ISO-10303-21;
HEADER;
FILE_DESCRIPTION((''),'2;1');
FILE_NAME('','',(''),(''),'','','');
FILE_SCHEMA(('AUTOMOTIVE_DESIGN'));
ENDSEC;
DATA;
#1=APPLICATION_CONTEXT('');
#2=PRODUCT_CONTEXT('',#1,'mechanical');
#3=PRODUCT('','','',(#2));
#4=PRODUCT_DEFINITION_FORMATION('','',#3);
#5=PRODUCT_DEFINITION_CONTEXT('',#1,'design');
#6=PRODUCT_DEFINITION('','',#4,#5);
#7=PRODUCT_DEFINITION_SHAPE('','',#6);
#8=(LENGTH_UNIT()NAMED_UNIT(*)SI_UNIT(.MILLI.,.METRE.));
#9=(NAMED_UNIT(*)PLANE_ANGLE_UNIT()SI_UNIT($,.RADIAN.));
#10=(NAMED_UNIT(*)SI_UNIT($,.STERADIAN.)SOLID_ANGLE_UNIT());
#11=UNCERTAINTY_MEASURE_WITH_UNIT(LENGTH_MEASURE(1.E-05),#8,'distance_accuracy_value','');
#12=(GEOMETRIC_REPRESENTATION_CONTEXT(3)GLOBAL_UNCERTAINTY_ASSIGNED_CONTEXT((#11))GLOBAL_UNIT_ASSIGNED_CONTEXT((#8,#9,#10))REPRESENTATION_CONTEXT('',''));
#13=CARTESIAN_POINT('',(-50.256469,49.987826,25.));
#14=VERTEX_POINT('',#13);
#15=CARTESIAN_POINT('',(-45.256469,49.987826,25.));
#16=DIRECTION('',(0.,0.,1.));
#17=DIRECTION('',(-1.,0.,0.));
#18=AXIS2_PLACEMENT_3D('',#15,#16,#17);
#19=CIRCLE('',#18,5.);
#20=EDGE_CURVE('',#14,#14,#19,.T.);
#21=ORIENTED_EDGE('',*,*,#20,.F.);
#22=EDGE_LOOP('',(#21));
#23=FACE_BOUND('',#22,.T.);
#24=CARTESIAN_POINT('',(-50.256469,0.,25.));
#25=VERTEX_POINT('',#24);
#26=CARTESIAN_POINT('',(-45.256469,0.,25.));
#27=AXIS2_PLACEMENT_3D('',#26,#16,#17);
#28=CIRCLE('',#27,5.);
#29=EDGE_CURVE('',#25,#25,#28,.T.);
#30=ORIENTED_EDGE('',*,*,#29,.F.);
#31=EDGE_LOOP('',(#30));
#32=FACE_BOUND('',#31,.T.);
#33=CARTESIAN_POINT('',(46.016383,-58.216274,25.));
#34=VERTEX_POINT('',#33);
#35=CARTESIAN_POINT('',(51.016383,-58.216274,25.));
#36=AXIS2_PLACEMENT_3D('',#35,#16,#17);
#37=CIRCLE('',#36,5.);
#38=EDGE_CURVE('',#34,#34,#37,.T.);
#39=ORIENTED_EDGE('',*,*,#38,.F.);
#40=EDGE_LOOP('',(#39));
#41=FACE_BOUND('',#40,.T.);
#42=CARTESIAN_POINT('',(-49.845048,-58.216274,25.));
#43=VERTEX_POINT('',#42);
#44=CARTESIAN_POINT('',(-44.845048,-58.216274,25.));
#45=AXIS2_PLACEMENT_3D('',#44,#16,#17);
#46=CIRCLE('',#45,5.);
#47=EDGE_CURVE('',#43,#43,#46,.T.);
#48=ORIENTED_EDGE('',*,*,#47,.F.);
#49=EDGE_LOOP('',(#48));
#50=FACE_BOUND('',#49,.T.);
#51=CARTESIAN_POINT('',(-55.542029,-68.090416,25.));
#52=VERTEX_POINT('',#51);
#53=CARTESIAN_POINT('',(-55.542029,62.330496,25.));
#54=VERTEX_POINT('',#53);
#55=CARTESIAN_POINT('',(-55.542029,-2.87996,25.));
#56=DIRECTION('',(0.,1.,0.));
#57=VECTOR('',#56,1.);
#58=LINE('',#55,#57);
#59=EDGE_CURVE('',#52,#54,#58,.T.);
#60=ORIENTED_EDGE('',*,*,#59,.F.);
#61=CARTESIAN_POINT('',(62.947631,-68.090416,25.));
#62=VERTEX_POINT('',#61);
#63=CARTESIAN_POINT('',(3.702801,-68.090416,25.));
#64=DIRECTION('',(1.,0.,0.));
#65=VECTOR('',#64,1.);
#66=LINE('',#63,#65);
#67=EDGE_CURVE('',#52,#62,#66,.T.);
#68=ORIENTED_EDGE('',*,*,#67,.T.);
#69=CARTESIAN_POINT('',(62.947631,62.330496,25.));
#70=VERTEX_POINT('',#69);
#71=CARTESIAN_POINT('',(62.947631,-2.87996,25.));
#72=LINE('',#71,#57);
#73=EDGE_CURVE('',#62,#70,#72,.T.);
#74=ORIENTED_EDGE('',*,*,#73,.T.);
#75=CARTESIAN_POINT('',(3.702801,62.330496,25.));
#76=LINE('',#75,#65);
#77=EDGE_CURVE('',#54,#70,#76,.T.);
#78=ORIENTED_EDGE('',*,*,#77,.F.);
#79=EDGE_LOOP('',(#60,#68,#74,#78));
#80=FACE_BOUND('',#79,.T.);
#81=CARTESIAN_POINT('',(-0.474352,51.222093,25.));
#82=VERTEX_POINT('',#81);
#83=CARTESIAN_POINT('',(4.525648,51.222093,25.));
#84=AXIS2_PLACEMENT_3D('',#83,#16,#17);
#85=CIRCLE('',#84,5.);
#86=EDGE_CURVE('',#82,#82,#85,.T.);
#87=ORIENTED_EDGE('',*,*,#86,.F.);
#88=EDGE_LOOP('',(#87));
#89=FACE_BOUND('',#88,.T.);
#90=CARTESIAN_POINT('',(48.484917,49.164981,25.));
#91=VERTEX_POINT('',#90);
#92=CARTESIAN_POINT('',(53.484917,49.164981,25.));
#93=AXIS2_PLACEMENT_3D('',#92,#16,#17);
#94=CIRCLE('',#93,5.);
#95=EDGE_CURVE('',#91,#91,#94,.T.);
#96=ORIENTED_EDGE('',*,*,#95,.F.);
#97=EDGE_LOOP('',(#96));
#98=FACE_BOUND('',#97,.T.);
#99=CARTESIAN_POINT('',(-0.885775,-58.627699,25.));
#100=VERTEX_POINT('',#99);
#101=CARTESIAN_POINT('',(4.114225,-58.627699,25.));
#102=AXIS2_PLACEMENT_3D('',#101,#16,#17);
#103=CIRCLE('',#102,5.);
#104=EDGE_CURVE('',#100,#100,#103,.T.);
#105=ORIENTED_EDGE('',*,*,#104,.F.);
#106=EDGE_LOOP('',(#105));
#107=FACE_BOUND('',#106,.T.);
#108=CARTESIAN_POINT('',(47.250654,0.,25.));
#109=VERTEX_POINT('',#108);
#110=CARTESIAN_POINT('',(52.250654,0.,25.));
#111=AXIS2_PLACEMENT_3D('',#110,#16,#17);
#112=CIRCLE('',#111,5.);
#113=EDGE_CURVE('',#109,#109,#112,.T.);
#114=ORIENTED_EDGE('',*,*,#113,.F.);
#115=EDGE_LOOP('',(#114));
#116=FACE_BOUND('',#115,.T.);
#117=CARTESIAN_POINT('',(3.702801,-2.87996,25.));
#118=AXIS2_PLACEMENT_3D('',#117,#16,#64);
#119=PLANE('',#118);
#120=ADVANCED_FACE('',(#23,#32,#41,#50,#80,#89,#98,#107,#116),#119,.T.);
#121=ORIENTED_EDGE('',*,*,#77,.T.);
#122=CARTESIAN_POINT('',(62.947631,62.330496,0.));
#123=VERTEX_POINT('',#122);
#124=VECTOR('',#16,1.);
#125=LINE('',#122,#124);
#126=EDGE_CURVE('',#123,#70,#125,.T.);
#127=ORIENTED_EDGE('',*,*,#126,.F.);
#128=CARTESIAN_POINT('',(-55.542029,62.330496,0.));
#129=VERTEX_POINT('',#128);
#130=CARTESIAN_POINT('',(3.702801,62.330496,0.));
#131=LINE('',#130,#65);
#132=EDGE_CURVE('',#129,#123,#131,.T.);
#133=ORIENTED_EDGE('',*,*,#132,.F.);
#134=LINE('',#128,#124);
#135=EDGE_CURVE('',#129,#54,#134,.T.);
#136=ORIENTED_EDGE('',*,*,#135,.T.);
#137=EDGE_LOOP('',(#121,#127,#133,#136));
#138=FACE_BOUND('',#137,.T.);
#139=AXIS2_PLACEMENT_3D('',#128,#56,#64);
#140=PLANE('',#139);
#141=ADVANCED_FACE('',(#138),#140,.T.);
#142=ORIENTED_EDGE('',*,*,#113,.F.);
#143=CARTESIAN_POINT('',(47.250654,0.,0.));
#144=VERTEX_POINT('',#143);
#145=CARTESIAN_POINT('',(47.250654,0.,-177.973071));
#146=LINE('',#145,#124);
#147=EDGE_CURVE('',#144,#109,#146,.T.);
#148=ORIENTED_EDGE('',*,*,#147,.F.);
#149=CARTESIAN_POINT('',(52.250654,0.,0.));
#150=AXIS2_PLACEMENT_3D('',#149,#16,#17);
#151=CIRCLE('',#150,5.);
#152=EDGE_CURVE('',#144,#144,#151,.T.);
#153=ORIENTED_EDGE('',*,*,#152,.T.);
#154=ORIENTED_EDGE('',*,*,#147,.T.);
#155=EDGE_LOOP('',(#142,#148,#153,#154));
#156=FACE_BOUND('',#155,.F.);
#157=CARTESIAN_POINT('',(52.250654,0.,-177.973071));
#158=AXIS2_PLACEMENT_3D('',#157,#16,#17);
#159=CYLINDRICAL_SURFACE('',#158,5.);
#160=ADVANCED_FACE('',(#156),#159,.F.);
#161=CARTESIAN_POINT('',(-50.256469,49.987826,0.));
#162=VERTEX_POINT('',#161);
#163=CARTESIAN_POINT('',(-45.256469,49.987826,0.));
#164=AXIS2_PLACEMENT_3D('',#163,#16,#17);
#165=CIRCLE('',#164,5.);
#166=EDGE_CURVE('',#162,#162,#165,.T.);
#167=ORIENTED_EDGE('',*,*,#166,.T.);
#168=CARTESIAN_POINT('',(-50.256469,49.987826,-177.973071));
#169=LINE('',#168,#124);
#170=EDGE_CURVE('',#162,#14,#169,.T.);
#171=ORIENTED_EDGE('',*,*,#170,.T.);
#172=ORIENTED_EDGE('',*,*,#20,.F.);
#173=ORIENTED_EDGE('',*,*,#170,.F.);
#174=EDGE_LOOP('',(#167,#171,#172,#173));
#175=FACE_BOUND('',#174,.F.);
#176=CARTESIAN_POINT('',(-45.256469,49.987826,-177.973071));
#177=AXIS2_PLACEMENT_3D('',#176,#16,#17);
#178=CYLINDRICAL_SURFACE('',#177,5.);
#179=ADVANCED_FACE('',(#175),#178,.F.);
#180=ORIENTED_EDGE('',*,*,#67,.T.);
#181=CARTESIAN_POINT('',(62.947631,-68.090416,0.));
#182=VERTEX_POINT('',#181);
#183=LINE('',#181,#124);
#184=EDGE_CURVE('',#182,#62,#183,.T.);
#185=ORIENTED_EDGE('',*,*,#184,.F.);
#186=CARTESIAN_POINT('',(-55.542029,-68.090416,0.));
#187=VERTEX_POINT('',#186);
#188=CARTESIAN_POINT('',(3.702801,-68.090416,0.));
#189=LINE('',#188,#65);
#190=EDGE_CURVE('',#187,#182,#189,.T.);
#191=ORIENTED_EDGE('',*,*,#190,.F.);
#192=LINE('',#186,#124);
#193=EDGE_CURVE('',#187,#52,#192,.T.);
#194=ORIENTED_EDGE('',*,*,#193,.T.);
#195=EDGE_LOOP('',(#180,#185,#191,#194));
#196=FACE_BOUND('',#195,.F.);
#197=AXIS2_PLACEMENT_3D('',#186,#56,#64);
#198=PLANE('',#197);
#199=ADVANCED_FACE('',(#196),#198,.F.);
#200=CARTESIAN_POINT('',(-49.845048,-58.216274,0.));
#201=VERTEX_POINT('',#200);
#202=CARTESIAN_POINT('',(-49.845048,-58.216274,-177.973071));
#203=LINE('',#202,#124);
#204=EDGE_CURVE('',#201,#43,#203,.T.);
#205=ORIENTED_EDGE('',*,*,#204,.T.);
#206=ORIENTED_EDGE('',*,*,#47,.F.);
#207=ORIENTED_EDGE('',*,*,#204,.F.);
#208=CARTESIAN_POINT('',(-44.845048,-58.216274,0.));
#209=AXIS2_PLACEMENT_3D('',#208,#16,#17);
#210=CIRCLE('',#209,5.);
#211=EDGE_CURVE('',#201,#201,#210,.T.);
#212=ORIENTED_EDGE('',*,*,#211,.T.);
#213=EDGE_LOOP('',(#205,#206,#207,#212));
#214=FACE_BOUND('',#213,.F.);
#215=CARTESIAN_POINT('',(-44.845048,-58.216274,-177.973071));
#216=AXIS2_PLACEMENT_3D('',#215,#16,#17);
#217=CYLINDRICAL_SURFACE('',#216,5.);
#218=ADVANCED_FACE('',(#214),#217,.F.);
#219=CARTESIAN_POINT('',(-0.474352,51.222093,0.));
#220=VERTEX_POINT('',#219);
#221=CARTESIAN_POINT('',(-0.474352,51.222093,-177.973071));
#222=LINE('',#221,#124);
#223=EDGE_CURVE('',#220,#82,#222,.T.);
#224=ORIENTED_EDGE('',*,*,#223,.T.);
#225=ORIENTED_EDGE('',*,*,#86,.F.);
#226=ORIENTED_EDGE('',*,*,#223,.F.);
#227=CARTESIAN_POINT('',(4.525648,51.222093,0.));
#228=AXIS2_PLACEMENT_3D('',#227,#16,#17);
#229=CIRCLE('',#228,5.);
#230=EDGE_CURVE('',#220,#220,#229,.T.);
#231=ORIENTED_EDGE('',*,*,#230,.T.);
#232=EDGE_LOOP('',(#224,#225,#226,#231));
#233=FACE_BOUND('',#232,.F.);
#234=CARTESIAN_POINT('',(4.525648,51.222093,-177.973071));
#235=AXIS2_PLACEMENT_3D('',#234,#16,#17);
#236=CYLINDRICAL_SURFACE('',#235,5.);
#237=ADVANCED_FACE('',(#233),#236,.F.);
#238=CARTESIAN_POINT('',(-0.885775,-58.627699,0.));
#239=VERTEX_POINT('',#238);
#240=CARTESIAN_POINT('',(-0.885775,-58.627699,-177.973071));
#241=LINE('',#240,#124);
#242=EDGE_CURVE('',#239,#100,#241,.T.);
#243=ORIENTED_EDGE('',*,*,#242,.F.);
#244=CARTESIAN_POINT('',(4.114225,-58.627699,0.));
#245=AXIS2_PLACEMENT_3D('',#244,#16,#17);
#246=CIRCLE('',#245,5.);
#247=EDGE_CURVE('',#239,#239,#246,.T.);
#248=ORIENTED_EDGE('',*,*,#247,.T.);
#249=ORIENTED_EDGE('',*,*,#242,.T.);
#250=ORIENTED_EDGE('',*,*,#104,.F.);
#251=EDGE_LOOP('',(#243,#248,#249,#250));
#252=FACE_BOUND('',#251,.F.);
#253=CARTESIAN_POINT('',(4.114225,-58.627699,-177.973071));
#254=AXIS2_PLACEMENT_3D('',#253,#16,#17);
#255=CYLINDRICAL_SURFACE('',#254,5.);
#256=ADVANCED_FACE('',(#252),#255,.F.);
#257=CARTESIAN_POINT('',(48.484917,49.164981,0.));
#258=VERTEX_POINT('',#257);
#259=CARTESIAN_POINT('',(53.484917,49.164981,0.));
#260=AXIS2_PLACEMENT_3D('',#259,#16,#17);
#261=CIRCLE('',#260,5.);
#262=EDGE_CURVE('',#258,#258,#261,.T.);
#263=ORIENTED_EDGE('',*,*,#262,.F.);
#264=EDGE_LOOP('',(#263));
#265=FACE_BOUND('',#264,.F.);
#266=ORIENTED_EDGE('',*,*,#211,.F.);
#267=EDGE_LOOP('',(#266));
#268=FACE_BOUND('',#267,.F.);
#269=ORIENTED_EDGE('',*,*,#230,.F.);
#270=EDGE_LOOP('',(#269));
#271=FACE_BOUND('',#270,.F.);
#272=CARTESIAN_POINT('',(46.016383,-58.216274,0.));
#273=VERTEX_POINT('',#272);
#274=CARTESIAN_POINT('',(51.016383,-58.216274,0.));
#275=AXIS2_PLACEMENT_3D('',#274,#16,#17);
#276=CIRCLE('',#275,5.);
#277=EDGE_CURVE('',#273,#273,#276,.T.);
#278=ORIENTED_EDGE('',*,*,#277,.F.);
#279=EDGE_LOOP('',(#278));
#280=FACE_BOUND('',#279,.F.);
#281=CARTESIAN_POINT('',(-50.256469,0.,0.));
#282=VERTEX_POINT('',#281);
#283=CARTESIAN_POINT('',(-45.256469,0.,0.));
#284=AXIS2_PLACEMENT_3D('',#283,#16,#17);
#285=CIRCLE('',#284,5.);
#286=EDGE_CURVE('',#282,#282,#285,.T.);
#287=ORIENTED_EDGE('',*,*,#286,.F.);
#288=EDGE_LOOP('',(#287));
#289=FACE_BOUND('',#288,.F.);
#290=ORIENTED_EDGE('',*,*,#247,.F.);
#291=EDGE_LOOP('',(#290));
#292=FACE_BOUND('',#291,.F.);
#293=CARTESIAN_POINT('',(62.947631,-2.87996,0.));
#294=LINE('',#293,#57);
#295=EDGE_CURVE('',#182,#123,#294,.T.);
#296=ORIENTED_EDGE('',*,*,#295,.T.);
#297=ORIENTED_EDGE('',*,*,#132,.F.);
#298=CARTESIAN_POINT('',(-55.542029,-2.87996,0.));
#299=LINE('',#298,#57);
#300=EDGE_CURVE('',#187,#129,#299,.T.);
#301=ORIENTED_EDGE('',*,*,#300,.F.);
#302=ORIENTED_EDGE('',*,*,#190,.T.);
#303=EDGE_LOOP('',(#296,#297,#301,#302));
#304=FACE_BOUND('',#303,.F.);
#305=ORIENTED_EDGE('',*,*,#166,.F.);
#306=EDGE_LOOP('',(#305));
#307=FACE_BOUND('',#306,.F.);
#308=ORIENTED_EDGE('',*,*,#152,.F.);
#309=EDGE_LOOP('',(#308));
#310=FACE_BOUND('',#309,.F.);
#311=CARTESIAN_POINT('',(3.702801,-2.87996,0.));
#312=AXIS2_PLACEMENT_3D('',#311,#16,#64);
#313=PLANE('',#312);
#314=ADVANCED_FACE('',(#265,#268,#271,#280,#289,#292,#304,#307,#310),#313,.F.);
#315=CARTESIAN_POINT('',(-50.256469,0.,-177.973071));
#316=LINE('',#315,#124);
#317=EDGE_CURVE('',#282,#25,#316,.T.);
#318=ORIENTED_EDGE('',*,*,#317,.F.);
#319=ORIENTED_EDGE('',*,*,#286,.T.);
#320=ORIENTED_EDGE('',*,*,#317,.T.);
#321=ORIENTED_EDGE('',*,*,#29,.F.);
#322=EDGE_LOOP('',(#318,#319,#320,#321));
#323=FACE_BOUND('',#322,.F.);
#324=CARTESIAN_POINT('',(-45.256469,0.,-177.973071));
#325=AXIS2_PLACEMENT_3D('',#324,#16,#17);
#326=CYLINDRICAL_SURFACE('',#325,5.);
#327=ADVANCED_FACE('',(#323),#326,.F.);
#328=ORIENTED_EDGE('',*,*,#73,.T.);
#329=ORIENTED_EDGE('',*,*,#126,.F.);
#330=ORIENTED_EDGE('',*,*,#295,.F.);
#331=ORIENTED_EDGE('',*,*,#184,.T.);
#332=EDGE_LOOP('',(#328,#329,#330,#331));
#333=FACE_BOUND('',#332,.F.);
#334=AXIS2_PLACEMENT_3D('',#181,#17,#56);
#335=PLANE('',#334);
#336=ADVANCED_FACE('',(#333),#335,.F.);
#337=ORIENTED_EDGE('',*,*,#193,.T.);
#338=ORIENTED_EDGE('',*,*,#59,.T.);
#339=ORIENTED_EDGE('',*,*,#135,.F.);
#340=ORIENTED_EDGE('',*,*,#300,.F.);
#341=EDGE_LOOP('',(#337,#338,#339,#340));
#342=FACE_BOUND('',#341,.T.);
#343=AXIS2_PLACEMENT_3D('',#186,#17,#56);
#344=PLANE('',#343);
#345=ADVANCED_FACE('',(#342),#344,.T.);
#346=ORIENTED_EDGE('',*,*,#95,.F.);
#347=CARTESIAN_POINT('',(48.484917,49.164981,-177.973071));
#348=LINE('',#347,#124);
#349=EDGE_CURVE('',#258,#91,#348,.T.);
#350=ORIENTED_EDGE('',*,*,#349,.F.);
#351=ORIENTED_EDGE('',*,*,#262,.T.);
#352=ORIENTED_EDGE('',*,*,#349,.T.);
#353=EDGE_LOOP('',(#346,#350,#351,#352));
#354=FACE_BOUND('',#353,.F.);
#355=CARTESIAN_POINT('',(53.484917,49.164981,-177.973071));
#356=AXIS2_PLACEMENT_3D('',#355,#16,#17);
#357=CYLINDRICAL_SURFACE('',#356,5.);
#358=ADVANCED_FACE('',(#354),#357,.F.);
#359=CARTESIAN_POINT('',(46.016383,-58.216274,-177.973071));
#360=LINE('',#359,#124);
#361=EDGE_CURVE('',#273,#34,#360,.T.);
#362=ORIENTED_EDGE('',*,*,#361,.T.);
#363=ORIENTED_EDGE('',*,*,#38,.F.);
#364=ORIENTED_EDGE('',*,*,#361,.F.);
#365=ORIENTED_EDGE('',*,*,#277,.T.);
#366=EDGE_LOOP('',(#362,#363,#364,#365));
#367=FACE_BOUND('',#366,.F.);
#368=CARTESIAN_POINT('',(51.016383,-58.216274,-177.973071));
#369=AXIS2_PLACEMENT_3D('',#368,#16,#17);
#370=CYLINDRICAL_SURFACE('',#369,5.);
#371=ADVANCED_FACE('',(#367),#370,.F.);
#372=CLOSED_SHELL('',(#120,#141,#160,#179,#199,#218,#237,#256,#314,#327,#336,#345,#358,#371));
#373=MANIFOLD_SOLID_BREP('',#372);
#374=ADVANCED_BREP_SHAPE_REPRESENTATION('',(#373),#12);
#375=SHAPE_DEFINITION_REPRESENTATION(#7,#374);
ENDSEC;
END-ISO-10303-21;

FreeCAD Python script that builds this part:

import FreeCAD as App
import Part
import Sketcher
from FreeCAD import Vector
Q = App.Units.Quantity


def add_polygon(sketch, points):
    """Adds a closed chain of lines whose ends are joined by coincident constraints."""
    first, n = sketch.GeometryCount, len(points)
    for a, b in zip(points, points[1:] + points[:1]):
        sketch.addGeometry(Part.LineSegment(App.Vector(*a, 0), App.Vector(*b, 0)), False)
    for i in range(n):
        sketch.addConstraint(Sketcher.Constraint("Coincident", first + i, 2, first + (i + 1) % n, 1))

doc = App.newDocument("Part")
body = doc.addObject("PartDesign::Body", "Body")

# Sketch on XY plane
sketch1 = body.newObject("Sketcher::SketchObject", "Sketch")
sketch1.AttachmentSupport = (doc.getObject("XY_Plane"), [""])
sketch1.MapMode = "FlatFace"
add_polygon(sketch1, [(-55.542029, 62.330496), (-55.542029, -68.090416), (62.947631, -68.090416), (62.947631, 62.330496)])  # lines 0-3
sketch1.addConstraint(Sketcher.Constraint("Vertical", 0))
sketch1.addConstraint(Sketcher.Constraint("Horizontal", 1))
sketch1.addConstraint(Sketcher.Constraint("Vertical", 2))
sketch1.addConstraint(Sketcher.Constraint("Horizontal", 3))
sketch1.addConstraint(Sketcher.Constraint("DistanceX", 1, 1, 1, 2, Q("118.48966 mm")))
sketch1.addConstraint(Sketcher.Constraint("DistanceY", 0, 2, 0, 1, Q("130.420912 mm")))
sketch1.addConstraint(Sketcher.Constraint("DistanceX", 0, 2, -1, 1, Q("55.542029 mm")))
sketch1.addConstraint(Sketcher.Constraint("DistanceY", 0, 2, -1, 1, Q("68.090416 mm")))
pad1 = body.newObject("PartDesign::Pad", "Pad")
pad1.Profile = sketch1
pad1.Length = 25

# Sketch on XY plane
sketch2 = body.newObject("Sketcher::SketchObject", "Sketch001")
sketch2.AttachmentSupport = (doc.getObject("XY_Plane"), [""])
sketch2.MapMode = "FlatFace"
sketch2.addGeometry(Part.Circle(Vector(-45.256469, 49.987826, 0), Vector(0, 0, 1), 5), False)
sketch2.addGeometry(Part.Circle(Vector(4.525648, 51.222093, 0), Vector(0, 0, 1), 5), False)
sketch2.addGeometry(Part.Circle(Vector(53.484917, 49.164981, 0), Vector(0, 0, 1), 5), False)
sketch2.addGeometry(Part.Circle(Vector(52.250654, 0, 0), Vector(0, 0, 1), 5), False)
sketch2.addGeometry(Part.Circle(Vector(51.016383, -58.216274, 0), Vector(0, 0, 1), 5), False)
sketch2.addGeometry(Part.Circle(Vector(4.114225, -58.627699, 0), Vector(0, 0, 1), 5), False)
sketch2.addGeometry(Part.Circle(Vector(-44.845048, -58.216274, 0), Vector(0, 0, 1), 5), False)
sketch2.addGeometry(Part.Circle(Vector(-45.256469, 0, 0), Vector(0, 0, 1), 5), False)
sketch2.addConstraint(Sketcher.Constraint("Equal", 0, 1))
sketch2.addConstraint(Sketcher.Constraint("Equal", 1, 2))
sketch2.addConstraint(Sketcher.Constraint("Equal", 2, 3))
sketch2.addConstraint(Sketcher.Constraint("Equal", 3, 4))
sketch2.addConstraint(Sketcher.Constraint("Equal", 4, 5))
sketch2.addConstraint(Sketcher.Constraint("Equal", 5, 6))
sketch2.addConstraint(Sketcher.Constraint("Equal", 6, 7))
sketch2.addConstraint(Sketcher.Constraint("PointOnObject", 3, 3, -1))
sketch2.addConstraint(Sketcher.Constraint("PointOnObject", 7, 3, -1))
sketch2.addConstraint(Sketcher.Constraint("Horizontal", 4, 3, 6, 3))
sketch2.addConstraint(Sketcher.Constraint("Vertical", 0, 3, 7, 3))
sketch2.addConstraint(Sketcher.Constraint("Diameter", 0, Q("10 mm")))
sketch2.addConstraint(Sketcher.Constraint("DistanceY", 5, 3, -1, 1, Q("58.627699 mm")))
sketch2.addConstraint(Sketcher.Constraint("DistanceY", 4, 3, 0, 3, Q("108.2041 mm")))
sketch2.addConstraint(Sketcher.Constraint("DistanceX", 6, 3, 3, 3, Q("97.095702 mm")))
sketch2.addConstraint(Sketcher.Constraint("DistanceX", 0, 3, -1, 1, Q("45.256469 mm")))
sketch2.addConstraint(Sketcher.Constraint("DistanceX", -1, 1, 1, 3, Q("4.525648 mm")))
sketch2.addConstraint(Sketcher.Constraint("DistanceY", -1, 1, 2, 3, Q("49.164981 mm")))
sketch2.addConstraint(Sketcher.Constraint("DistanceX", 6, 3, -1, 1, Q("44.845048 mm")))
sketch2.addConstraint(Sketcher.Constraint("DistanceX", 1, 3, 2, 3, Q("48.959268 mm")))
sketch2.addConstraint(Sketcher.Constraint("DistanceX", 4, 3, 3, 3, Q("1.234271 mm")))
sketch2.addConstraint(Sketcher.Constraint("DistanceX", 5, 3, 4, 3, Q("46.902158 mm")))
sketch2.addConstraint(Sketcher.Constraint("DistanceY", 5, 3, 1, 3, Q("109.849792 mm")))
sketch2.addConstraint(Sketcher.Constraint("DistanceY", -1, 1, 0, 3, Q("49.987826 mm")))
doc.recompute()
hole = body.newObject("PartDesign::Hole", "Hole")
hole.Profile = sketch2
hole.ThreadType = "None"
hole.Diameter = 10
hole.DepthType = "ThroughAll"
hole.Reversed = True

doc.recompute()
